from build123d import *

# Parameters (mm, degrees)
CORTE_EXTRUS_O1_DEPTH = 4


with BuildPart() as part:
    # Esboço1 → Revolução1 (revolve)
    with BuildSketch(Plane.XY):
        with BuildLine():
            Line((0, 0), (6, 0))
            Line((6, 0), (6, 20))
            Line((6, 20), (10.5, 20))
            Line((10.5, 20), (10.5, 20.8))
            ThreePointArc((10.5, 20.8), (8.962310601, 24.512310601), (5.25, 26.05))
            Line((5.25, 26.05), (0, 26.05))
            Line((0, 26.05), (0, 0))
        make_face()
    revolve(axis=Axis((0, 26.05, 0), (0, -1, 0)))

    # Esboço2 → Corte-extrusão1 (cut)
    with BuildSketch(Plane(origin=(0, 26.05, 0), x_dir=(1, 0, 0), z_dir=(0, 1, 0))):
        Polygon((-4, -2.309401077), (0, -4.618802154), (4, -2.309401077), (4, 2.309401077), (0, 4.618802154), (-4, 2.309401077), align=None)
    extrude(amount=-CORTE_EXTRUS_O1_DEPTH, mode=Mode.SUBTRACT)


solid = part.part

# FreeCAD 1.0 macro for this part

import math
import FreeCAD as App
import Part
import Sketcher
from FreeCAD import Vector
Q = App.Units.Quantity


def add_polygon(sketch, points):
    """Adds a closed chain of lines whose ends are joined by coincident constraints."""
    first, n = sketch.GeometryCount, len(points)
    for a, b in zip(points, points[1:] + points[:1]):
        sketch.addGeometry(Part.LineSegment(App.Vector(*a, 0), App.Vector(*b, 0)), False)
    for i in range(n):
        sketch.addConstraint(Sketcher.Constraint("Coincident", first + i, 2, first + (i + 1) % n, 1))

doc = App.newDocument("Part")
body = doc.addObject("PartDesign::Body", "Body")

sketch1 = body.newObject("Sketcher::SketchObject", "Sketch")
sketch1.AttachmentSupport = (doc.getObject("XY_Plane"), [""])
sketch1.MapMode = "FlatFace"
sketch1.addGeometry([
    Part.LineSegment(Vector(0, 0, 0), Vector(6, 0, 0)),
    Part.LineSegment(Vector(6, 0, 0), Vector(6, 20, 0)),
    Part.LineSegment(Vector(6, 20, 0), Vector(10.5, 20, 0)),
    Part.LineSegment(Vector(10.5, 20, 0), Vector(10.5, 20.8, 0)),
    Part.ArcOfCircle(Part.Circle(Vector(5.2, 20.8, 0), Vector(0, 0, 1), 5.3), math.radians(0), math.radians(90)),
    Part.LineSegment(Vector(5.2, 26.1, 0), Vector(0, 26.1, 0)),
    Part.LineSegment(Vector(0, 26.1, 0), Vector(0, 0, 0)),
], False)
sketch1.addConstraint([
    Sketcher.Constraint("Coincident", 0, 2, 1, 1),
    Sketcher.Constraint("Coincident", 1, 2, 2, 1),
    Sketcher.Constraint("Coincident", 2, 2, 3, 1),
    Sketcher.Constraint("Tangent", 3, 2, 4, 1),
    Sketcher.Constraint("Tangent", 4, 2, 5, 1),
    Sketcher.Constraint("Coincident", 5, 2, 6, 1),
    Sketcher.Constraint("Coincident", 6, 2, 0, 1),
    Sketcher.Constraint("Horizontal", 0),
    Sketcher.Constraint("Vertical", 1),
    Sketcher.Constraint("Horizontal", 2),
    Sketcher.Constraint("Vertical", 3),
    Sketcher.Constraint("Horizontal", 5),
    Sketcher.Constraint("Vertical", 6),
    Sketcher.Constraint("Coincident", 6, 2, -1, 1),
    Sketcher.Constraint("DistanceX", 0, 1, 0, 2, 6.0),
    Sketcher.Constraint("DistanceY", 1, 1, 1, 2, 20.0),
    Sketcher.Constraint("Radius", 4, 5.25),
    Sketcher.Constraint("DistanceX", 2, 1, 2, 2, 4.5),
    Sketcher.Constraint("DistanceY", 3, 1, 3, 2, 0.8),
])
revolution = body.newObject("PartDesign::Revolution", "Revolution")
revolution.Profile = sketch1
revolution.ReferenceAxis = (sketch1, ["V_Axis"])
revolution.Angle = 360

sketch2 = body.newObject("Sketcher::SketchObject", "Sketch001")
sketch2.AttachmentSupport = (doc.getObject("XZ_Plane"), [""])
sketch2.MapMode = "FlatFace"
sketch2.AttachmentOffset = App.Placement(Vector(0, 0, -26.05), App.Rotation())
add_polygon(sketch2, [(-4, 2.3), (0, 4.6), (4, 2.3), (4, -2.3), (0, -4.6), (-4, -2.3)])
sketch2.addConstraint([
    Sketcher.Constraint("Vertical", 2),
    Sketcher.Constraint("Vertical", 5),
    Sketcher.Constraint("Symmetric", 0, 2, 3, 2, -1, 1),
    Sketcher.Constraint("Symmetric", 1, 2, 4, 2, -1, 1),
    Sketcher.Constraint("PointOnObject", 0, 2, -2),
    Sketcher.Constraint("Parallel", 0, 3),
    Sketcher.Constraint("Horizontal", 2, 2, 4, 2),
    Sketcher.Constraint("Angle", 0, Q("30 deg")),
    Sketcher.Constraint("DistanceX", -1, 1, 1, 2, 4.0),
    Sketcher.Constraint("DistanceY", -1, 1, 1, 2, 2.309401),
])
pocket1 = body.newObject("PartDesign::Pocket", "Pocket")
pocket1.Profile = sketch2
pocket1.Length = 4
pocket1.Reversed = True

doc.recompute()
